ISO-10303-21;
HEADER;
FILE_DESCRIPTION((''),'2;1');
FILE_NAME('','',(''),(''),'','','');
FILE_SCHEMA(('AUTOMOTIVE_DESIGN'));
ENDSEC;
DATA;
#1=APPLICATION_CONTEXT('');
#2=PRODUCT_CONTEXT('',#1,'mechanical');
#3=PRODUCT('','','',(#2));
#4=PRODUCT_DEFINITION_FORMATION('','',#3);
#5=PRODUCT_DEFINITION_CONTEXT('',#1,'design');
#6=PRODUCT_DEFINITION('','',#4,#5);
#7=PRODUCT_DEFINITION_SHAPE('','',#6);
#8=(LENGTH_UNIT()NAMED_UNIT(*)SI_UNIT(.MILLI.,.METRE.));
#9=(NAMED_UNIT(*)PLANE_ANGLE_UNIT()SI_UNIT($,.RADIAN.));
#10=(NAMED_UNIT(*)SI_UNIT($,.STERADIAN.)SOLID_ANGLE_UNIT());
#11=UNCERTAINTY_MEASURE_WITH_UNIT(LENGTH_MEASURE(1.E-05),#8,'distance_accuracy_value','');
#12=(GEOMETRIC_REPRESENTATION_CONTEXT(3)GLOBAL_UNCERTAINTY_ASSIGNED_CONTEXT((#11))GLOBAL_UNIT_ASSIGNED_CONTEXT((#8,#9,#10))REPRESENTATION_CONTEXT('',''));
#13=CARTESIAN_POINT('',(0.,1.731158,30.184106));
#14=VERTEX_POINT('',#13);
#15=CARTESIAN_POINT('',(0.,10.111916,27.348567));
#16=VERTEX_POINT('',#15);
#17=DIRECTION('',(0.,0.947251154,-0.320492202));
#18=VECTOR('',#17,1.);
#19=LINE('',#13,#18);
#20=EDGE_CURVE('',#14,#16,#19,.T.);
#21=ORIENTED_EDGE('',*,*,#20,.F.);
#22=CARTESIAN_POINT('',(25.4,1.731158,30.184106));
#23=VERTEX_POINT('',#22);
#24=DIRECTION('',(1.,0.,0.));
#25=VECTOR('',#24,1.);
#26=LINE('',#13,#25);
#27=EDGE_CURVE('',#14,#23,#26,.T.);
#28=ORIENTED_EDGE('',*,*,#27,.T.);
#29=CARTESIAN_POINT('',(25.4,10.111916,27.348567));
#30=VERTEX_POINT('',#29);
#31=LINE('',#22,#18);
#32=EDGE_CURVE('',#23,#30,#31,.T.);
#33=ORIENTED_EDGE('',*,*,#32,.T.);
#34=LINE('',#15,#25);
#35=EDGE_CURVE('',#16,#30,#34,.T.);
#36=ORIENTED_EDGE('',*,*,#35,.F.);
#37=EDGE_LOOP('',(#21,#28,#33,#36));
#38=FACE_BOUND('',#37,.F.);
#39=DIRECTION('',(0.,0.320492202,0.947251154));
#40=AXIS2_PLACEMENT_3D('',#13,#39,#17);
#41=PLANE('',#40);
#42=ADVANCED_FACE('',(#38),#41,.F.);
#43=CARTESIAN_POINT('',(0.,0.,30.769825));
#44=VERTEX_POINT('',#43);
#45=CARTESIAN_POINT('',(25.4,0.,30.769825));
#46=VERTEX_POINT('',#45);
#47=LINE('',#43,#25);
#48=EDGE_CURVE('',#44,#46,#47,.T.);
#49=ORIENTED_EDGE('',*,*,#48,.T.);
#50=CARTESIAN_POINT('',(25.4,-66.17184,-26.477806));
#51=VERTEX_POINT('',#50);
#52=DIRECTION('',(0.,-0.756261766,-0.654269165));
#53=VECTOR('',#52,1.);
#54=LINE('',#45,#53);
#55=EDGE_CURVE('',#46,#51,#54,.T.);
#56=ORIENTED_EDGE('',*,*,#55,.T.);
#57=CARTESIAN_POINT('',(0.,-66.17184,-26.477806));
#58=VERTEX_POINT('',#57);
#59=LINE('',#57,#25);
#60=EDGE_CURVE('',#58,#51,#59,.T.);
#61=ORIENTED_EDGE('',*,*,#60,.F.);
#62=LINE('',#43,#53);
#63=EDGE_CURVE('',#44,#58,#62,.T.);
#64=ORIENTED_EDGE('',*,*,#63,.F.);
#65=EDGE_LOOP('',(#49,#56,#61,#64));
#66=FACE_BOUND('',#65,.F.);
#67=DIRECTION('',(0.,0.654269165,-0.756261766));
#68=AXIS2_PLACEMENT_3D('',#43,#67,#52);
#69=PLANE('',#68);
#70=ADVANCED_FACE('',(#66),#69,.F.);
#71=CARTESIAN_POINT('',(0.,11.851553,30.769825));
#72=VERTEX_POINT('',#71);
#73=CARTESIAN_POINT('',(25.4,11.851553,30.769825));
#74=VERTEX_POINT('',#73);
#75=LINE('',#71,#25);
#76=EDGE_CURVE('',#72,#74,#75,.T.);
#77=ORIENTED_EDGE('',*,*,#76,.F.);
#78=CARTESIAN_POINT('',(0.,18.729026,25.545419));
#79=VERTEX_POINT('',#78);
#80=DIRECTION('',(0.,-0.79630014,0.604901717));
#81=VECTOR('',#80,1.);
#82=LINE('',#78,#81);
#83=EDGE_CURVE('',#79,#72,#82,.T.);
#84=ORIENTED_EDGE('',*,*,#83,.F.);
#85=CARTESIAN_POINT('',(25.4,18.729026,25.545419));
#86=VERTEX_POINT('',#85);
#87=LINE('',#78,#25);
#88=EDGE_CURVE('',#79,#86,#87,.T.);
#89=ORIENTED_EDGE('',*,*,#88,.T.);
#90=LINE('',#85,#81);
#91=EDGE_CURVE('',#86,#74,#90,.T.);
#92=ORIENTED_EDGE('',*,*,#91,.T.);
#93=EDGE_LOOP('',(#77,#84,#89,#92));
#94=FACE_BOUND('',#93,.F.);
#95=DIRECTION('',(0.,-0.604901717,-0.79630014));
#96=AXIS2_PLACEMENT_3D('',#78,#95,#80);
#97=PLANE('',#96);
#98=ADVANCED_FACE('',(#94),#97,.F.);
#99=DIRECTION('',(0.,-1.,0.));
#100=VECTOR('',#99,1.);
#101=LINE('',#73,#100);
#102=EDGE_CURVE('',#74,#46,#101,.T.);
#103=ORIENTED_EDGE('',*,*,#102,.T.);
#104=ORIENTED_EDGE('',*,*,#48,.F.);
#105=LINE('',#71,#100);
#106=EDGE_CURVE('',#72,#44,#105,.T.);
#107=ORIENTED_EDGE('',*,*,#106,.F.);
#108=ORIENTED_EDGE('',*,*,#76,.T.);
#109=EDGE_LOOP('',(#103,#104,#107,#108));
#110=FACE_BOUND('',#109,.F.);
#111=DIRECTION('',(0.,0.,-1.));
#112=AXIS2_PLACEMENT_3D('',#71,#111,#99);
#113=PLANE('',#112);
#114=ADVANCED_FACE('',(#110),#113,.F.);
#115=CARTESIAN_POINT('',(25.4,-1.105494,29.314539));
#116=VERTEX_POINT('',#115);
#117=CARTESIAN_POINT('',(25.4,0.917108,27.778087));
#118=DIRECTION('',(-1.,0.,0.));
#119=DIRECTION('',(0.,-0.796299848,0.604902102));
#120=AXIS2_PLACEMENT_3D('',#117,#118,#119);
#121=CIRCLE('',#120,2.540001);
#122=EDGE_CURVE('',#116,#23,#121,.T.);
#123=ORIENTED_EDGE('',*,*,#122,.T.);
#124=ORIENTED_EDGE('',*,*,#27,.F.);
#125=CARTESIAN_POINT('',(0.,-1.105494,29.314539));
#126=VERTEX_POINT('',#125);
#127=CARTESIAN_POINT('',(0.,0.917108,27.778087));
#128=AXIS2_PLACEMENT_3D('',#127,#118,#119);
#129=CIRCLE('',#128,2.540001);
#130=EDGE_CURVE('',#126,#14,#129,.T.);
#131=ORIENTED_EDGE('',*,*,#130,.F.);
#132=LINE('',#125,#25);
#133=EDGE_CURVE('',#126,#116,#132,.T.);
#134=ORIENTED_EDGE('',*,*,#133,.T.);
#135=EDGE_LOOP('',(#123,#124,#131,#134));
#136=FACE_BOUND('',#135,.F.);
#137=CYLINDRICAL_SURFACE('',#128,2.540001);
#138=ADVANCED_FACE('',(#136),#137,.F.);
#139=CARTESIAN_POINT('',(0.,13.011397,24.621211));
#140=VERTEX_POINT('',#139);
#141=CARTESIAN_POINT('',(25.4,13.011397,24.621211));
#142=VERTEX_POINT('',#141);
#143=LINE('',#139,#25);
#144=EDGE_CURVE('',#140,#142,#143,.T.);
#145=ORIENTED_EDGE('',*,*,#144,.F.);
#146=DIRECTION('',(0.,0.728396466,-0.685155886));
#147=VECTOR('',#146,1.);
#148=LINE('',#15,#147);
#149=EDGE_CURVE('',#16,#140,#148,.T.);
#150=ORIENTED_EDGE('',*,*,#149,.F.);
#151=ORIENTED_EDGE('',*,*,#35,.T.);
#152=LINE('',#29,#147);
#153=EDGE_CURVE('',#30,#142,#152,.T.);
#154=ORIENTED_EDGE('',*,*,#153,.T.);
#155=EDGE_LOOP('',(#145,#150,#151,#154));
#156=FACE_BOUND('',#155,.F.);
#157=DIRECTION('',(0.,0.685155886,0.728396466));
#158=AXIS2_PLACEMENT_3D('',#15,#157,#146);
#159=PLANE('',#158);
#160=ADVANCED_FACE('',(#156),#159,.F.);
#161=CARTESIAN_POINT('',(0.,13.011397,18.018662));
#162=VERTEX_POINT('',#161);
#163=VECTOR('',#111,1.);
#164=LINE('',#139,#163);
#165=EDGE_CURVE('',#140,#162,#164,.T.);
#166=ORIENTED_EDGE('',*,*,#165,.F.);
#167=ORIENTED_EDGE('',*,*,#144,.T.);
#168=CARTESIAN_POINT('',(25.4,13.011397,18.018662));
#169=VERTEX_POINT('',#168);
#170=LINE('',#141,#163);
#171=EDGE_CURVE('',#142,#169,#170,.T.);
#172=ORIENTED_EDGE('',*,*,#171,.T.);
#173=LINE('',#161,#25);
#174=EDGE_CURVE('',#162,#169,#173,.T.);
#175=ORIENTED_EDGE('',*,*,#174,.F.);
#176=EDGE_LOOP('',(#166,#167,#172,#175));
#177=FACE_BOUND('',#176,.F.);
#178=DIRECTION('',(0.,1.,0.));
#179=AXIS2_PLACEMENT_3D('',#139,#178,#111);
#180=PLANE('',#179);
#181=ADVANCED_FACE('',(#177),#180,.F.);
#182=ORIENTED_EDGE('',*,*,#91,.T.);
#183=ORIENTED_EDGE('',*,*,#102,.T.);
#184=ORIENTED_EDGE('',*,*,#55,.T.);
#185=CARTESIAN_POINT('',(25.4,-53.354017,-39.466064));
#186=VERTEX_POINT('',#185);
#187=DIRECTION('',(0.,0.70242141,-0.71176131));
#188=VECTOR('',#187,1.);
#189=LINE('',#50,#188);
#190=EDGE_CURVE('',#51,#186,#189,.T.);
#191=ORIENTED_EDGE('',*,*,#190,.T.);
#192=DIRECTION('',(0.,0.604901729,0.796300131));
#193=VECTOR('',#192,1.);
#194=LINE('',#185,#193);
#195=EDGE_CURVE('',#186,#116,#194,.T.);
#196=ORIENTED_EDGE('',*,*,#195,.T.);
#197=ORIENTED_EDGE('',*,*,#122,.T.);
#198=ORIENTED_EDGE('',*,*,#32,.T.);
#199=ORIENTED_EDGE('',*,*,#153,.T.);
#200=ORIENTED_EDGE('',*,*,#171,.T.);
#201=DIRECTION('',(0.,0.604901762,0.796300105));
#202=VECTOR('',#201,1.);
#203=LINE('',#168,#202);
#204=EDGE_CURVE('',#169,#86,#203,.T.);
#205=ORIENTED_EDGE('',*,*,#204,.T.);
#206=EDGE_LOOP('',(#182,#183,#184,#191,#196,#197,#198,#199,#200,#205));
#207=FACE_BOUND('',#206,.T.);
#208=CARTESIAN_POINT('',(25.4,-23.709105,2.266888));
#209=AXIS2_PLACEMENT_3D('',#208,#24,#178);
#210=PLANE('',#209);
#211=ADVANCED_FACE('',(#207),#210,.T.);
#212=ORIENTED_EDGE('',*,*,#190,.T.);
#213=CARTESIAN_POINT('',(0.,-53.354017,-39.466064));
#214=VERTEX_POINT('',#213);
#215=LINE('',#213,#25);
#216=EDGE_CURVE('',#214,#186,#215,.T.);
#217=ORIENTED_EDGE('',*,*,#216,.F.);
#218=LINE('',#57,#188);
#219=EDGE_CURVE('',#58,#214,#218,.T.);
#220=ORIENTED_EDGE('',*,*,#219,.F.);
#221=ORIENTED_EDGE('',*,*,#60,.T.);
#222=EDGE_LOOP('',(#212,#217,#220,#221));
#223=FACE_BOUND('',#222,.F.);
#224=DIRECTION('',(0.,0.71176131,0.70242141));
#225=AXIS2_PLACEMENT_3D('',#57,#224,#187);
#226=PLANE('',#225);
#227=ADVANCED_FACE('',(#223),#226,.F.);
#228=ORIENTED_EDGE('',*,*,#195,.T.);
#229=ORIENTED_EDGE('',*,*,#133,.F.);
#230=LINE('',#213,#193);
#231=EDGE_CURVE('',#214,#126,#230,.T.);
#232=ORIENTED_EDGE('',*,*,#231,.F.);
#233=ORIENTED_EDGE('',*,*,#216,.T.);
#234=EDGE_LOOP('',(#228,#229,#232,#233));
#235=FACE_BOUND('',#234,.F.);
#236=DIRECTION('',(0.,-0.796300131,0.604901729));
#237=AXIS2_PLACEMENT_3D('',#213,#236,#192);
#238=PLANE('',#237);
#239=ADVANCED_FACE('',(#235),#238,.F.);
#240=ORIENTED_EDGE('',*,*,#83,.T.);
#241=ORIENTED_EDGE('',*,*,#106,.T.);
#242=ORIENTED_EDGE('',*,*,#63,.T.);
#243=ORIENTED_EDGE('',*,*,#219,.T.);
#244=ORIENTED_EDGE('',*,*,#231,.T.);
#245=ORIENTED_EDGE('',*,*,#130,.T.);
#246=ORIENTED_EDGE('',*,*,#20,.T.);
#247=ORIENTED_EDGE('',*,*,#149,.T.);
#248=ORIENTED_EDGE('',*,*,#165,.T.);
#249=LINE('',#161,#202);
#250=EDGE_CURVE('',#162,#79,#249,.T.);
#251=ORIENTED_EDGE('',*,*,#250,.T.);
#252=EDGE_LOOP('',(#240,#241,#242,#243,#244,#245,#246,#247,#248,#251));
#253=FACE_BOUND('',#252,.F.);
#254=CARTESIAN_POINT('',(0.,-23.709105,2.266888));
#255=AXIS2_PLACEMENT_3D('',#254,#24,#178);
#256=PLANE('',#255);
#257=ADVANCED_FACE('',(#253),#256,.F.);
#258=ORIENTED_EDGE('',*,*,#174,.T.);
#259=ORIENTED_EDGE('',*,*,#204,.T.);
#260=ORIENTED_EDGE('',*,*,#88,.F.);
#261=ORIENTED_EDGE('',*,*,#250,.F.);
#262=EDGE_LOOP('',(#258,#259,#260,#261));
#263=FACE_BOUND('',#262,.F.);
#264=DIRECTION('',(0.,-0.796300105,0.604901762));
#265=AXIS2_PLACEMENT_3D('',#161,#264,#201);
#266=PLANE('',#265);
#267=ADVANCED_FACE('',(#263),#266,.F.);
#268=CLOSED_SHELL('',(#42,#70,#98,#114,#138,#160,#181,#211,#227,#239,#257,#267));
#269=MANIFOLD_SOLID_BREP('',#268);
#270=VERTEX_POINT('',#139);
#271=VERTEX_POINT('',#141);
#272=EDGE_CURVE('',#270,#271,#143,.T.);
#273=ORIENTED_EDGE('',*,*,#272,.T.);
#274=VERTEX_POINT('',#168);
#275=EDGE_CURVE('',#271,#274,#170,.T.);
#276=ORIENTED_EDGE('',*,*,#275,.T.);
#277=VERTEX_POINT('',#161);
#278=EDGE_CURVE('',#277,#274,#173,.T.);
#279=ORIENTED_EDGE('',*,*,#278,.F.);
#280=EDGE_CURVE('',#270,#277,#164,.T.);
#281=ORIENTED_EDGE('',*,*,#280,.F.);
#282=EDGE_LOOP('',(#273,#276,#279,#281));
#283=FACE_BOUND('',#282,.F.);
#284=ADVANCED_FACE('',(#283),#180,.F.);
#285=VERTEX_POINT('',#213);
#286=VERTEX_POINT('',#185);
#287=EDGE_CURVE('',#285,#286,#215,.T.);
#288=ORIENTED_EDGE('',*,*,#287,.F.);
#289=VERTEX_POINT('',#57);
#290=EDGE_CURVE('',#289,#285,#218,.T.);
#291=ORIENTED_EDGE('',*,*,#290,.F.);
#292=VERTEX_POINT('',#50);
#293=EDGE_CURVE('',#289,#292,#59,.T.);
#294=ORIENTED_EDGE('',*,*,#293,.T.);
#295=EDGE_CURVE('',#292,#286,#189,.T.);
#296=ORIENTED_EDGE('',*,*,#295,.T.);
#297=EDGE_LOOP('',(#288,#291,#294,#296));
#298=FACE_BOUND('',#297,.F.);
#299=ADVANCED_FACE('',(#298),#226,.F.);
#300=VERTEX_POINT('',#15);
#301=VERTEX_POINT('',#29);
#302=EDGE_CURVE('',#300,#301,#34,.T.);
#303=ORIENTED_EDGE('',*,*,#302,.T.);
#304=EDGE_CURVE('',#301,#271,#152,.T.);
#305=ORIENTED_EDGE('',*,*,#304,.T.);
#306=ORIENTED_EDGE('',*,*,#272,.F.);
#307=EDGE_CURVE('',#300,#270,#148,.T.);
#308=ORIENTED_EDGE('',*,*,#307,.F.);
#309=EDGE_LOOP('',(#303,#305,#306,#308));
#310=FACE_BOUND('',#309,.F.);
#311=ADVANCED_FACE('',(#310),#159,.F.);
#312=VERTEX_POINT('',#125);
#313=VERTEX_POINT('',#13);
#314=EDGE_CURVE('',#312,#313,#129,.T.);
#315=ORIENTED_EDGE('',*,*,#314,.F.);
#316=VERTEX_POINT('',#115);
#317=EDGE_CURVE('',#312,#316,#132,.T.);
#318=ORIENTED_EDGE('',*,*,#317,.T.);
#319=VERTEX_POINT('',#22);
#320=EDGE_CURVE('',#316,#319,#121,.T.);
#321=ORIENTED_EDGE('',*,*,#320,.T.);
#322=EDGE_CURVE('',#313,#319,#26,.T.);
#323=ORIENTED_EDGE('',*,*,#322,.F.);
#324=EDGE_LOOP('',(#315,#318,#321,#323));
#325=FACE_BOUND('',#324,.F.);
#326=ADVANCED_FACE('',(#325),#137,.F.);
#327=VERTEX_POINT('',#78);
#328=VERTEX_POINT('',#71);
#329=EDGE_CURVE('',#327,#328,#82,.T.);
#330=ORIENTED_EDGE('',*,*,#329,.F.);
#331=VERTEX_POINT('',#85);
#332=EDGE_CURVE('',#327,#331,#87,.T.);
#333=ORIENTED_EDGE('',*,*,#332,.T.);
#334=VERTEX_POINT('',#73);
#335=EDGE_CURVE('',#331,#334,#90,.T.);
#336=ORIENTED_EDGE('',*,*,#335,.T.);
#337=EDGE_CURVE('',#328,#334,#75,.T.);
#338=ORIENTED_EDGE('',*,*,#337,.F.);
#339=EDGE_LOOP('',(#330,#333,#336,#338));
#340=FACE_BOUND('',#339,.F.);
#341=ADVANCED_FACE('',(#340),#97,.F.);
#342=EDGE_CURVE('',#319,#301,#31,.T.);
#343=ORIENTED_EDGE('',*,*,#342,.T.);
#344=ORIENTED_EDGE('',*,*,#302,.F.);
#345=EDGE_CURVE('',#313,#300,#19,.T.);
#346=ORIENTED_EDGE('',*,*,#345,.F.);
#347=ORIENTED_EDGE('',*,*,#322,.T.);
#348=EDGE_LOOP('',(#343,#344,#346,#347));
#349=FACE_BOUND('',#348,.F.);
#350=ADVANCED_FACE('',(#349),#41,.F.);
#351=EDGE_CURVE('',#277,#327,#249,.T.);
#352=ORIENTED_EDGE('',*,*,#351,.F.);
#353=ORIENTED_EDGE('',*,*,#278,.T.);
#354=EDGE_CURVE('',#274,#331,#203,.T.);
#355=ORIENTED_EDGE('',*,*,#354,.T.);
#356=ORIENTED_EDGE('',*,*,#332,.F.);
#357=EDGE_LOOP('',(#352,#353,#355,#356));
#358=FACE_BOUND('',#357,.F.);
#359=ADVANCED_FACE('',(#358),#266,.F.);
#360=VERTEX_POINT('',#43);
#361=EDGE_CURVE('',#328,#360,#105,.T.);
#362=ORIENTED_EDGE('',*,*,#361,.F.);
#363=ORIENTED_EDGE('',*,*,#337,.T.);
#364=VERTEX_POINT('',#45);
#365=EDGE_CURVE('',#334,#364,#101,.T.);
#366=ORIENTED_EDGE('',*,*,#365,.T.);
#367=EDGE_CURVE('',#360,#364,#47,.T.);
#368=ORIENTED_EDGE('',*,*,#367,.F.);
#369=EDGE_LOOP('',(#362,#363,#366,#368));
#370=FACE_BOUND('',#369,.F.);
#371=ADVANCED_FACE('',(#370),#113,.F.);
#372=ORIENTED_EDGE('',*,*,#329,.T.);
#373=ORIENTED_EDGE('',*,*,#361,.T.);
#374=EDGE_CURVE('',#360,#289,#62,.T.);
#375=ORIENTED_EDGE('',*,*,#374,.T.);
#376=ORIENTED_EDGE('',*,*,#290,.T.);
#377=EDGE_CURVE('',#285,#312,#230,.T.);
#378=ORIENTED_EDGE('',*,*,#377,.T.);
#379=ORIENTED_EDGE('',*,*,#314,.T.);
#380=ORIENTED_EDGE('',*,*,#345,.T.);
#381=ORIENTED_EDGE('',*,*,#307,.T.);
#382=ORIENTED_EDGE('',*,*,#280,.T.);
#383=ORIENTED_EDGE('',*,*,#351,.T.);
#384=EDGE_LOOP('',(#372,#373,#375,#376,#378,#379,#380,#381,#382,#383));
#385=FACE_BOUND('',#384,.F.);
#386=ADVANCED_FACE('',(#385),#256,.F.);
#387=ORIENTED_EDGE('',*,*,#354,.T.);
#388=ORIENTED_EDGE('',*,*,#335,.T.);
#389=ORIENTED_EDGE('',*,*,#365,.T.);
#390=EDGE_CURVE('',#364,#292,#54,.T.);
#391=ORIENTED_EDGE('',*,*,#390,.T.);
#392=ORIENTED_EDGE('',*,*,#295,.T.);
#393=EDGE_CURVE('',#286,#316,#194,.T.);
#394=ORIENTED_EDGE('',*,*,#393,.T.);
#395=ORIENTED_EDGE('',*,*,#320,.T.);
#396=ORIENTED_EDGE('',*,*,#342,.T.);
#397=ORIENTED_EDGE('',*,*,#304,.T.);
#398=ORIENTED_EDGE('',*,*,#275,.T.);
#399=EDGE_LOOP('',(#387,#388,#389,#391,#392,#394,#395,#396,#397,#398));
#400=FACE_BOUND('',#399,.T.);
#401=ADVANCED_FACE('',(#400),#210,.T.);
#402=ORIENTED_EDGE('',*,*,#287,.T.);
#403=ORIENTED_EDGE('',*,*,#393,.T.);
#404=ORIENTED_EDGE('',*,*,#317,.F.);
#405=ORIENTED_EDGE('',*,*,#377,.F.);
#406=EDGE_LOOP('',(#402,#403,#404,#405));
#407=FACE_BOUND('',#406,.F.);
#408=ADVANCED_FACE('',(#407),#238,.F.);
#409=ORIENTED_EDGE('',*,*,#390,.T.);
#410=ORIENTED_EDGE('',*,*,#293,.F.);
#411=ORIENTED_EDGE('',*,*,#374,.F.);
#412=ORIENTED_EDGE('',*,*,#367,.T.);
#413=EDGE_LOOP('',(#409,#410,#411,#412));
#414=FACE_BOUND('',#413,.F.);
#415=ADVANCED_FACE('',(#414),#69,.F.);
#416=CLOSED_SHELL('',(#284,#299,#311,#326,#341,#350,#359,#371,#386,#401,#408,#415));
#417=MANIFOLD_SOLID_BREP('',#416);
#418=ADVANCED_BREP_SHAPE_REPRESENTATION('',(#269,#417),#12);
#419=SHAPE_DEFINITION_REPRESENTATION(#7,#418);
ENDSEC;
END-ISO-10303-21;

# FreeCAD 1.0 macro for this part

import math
import FreeCAD as App
import Part
import Sketcher

V = App.Vector
Q = App.Units.Quantity

doc = App.newDocument("Part")
body = doc.addObject("PartDesign::Body", "Body")

# Sketch on YZ plane
sketch1 = body.newObject("Sketcher::SketchObject", "Sketch")
sketch1.AttachmentSupport = (doc.getObject("YZ_Plane"), [""])
sketch1.MapMode = "FlatFace"
sketch1.addGeometry([
    Part.LineSegment(V(0, 30.769825, 0), V(-66.17184, -26.477806, 0)),  # 0
    Part.LineSegment(V(-66.17184, -26.477806, 0), V(-53.354017, -39.466064, 0)),  # 1
    Part.LineSegment(V(-53.354017, -39.466064, 0), V(-1.105494, 29.314539, 0)),  # 2
    Part.ArcOfCircle(Part.Circle(V(0.917108, 27.778087, 0), V(0, 0, 1), 2.540001), math.radians(71.307319), math.radians(142.778202)),  # 3
    Part.LineSegment(V(1.731158, 30.184106, 0), V(10.111916, 27.348567, 0)),  # 4
    Part.LineSegment(V(10.111916, 27.348567, 0), V(13.011397, 24.621211, 0)),  # 5
    Part.LineSegment(V(13.011397, 24.621211, 0), V(13.011397, 18.018662, 0)),  # 6
    Part.LineSegment(V(13.011397, 18.018662, 0), V(18.729026, 25.545419, 0)),  # 7
    Part.LineSegment(V(18.729026, 25.545419, 0), V(11.851553, 30.769825, 0)),  # 8
    Part.LineSegment(V(11.851553, 30.769825, 0), V(0, 30.769825, 0)),  # 9
], False)
sketch1.addConstraint([
    Sketcher.Constraint("Coincident", 0, 2, 1, 1),
    Sketcher.Constraint("Coincident", 1, 2, 2, 1),
    Sketcher.Constraint("Tangent", 2, 2, 3, 2),
    Sketcher.Constraint("Tangent", 3, 1, 4, 1),
    Sketcher.Constraint("Coincident", 4, 2, 5, 1),
    Sketcher.Constraint("Coincident", 5, 2, 6, 1),
    Sketcher.Constraint("Coincident", 6, 2, 7, 1),
    Sketcher.Constraint("Coincident", 7, 2, 8, 1),
    Sketcher.Constraint("Coincident", 8, 2, 9, 1),
    Sketcher.Constraint("Coincident", 9, 2, 0, 1),
    Sketcher.Constraint("Vertical", 6),
    Sketcher.Constraint("Horizontal", 9),
    Sketcher.Constraint("PointOnObject", 9, 2, -2),
    Sketcher.Constraint("Parallel", 2, 7),
    Sketcher.Constraint("Perpendicular", 7, 8),
    Sketcher.Constraint("Radius", 3, Q("0.1 in")),
    Sketcher.Constraint("DistanceY", 6, 2, 6, 1, 6.602549),
    Sketcher.Constraint("DistanceX", 0, 2, 3, 1, 67.902998),
    Sketcher.Constraint("Distance", 4, 8.847451),
    Sketcher.Constraint("Distance", 7, 9.452161),
    Sketcher.Constraint("DistanceX", 9, 2, 9, 1, 11.851553),
    Sketcher.Constraint("DistanceX", -1, 1, 3, 3, 0.917108),
    Sketcher.Constraint("DistanceX", 0, 2, -1, 1, 66.17184),
    Sketcher.Constraint("DistanceY", -1, 1, 2, 2, 29.314539),
    Sketcher.Constraint("DistanceY", -1, 1, 5, 2, 24.621211),
    Sketcher.Constraint("DistanceY", -1, 1, 7, 2, 25.545419),
    Sketcher.Constraint("DistanceY", 1, 2, 0, 2, 12.988258),
    Sketcher.Constraint("DistanceY", 1, 2, 3, 3, 67.244151),
    Sketcher.Constraint("DistanceX", 4, 2, 5, 2, 2.899481),
])
pad1 = body.newObject("PartDesign::Pad", "Pad")
pad1.Profile = sketch1
pad1.Length = Q("1 in")
body2 = doc.addObject("PartDesign::Body", "Body001")

# Sketch on YZ plane
sketch2 = body2.newObject("Sketcher::SketchObject", "Sketch001")
sketch2.AttachmentSupport = (doc.getObject("YZ_Plane001"), [""])
sketch2.MapMode = "FlatFace"
sketch2.addGeometry([
    Part.LineSegment(V(0, 30.769825, 0), V(-66.17184, -26.477806, 0)),  # 0
    Part.LineSegment(V(-66.17184, -26.477806, 0), V(-53.354017, -39.466064, 0)),  # 1
    Part.LineSegment(V(-53.354017, -39.466064, 0), V(-1.105494, 29.314539, 0)),  # 2
    Part.ArcOfCircle(Part.Circle(V(0.917108, 27.778087, 0), V(0, 0, 1), 2.540001), math.radians(71.307319), math.radians(142.778202)),  # 3
    Part.LineSegment(V(1.731158, 30.184106, 0), V(10.111916, 27.348567, 0)),  # 4
    Part.LineSegment(V(10.111916, 27.348567, 0), V(13.011397, 24.621211, 0)),  # 5
    Part.LineSegment(V(13.011397, 24.621211, 0), V(13.011397, 18.018662, 0)),  # 6
    Part.LineSegment(V(13.011397, 18.018662, 0), V(18.729026, 25.545419, 0)),  # 7
    Part.LineSegment(V(18.729026, 25.545419, 0), V(11.851553, 30.769825, 0)),  # 8
    Part.LineSegment(V(11.851553, 30.769825, 0), V(0, 30.769825, 0)),  # 9
], False)
sketch2.addConstraint([
    Sketcher.Constraint("Coincident", 0, 2, 1, 1),
    Sketcher.Constraint("Coincident", 1, 2, 2, 1),
    Sketcher.Constraint("Tangent", 2, 2, 3, 2),
    Sketcher.Constraint("Tangent", 3, 1, 4, 1),
    Sketcher.Constraint("Coincident", 4, 2, 5, 1),
    Sketcher.Constraint("Coincident", 5, 2, 6, 1),
    Sketcher.Constraint("Coincident", 6, 2, 7, 1),
    Sketcher.Constraint("Coincident", 7, 2, 8, 1),
    Sketcher.Constraint("Coincident", 8, 2, 9, 1),
    Sketcher.Constraint("Coincident", 9, 2, 0, 1),
    Sketcher.Constraint("Vertical", 6),
    Sketcher.Constraint("Horizontal", 9),
    Sketcher.Constraint("PointOnObject", 9, 2, -2),
    Sketcher.Constraint("Parallel", 2, 7),
    Sketcher.Constraint("Perpendicular", 7, 8),
    Sketcher.Constraint("Radius", 3, Q("0.1 in")),
    Sketcher.Constraint("DistanceY", 6, 2, 6, 1, 6.602549),
    Sketcher.Constraint("DistanceX", 0, 2, 3, 1, 67.902998),
    Sketcher.Constraint("Distance", 4, 8.847451),
    Sketcher.Constraint("Distance", 7, 9.452161),
    Sketcher.Constraint("DistanceX", 9, 2, 9, 1, 11.851553),
    Sketcher.Constraint("DistanceX", -1, 1, 3, 3, 0.917108),
    Sketcher.Constraint("DistanceX", 0, 2, -1, 1, 66.17184),
    Sketcher.Constraint("DistanceY", -1, 1, 2, 2, 29.314539),
    Sketcher.Constraint("DistanceY", -1, 1, 5, 2, 24.621211),
    Sketcher.Constraint("DistanceY", -1, 1, 7, 2, 25.545419),
    Sketcher.Constraint("DistanceY", 1, 2, 0, 2, 12.988258),
    Sketcher.Constraint("DistanceY", 1, 2, 3, 3, 67.244151),
    Sketcher.Constraint("DistanceX", 4, 2, 5, 2, 2.899481),
])
pad2 = body2.newObject("PartDesign::Pad", "Pad001")
pad2.Profile = sketch2
pad2.Length = Q("1 in")

doc.recompute()
